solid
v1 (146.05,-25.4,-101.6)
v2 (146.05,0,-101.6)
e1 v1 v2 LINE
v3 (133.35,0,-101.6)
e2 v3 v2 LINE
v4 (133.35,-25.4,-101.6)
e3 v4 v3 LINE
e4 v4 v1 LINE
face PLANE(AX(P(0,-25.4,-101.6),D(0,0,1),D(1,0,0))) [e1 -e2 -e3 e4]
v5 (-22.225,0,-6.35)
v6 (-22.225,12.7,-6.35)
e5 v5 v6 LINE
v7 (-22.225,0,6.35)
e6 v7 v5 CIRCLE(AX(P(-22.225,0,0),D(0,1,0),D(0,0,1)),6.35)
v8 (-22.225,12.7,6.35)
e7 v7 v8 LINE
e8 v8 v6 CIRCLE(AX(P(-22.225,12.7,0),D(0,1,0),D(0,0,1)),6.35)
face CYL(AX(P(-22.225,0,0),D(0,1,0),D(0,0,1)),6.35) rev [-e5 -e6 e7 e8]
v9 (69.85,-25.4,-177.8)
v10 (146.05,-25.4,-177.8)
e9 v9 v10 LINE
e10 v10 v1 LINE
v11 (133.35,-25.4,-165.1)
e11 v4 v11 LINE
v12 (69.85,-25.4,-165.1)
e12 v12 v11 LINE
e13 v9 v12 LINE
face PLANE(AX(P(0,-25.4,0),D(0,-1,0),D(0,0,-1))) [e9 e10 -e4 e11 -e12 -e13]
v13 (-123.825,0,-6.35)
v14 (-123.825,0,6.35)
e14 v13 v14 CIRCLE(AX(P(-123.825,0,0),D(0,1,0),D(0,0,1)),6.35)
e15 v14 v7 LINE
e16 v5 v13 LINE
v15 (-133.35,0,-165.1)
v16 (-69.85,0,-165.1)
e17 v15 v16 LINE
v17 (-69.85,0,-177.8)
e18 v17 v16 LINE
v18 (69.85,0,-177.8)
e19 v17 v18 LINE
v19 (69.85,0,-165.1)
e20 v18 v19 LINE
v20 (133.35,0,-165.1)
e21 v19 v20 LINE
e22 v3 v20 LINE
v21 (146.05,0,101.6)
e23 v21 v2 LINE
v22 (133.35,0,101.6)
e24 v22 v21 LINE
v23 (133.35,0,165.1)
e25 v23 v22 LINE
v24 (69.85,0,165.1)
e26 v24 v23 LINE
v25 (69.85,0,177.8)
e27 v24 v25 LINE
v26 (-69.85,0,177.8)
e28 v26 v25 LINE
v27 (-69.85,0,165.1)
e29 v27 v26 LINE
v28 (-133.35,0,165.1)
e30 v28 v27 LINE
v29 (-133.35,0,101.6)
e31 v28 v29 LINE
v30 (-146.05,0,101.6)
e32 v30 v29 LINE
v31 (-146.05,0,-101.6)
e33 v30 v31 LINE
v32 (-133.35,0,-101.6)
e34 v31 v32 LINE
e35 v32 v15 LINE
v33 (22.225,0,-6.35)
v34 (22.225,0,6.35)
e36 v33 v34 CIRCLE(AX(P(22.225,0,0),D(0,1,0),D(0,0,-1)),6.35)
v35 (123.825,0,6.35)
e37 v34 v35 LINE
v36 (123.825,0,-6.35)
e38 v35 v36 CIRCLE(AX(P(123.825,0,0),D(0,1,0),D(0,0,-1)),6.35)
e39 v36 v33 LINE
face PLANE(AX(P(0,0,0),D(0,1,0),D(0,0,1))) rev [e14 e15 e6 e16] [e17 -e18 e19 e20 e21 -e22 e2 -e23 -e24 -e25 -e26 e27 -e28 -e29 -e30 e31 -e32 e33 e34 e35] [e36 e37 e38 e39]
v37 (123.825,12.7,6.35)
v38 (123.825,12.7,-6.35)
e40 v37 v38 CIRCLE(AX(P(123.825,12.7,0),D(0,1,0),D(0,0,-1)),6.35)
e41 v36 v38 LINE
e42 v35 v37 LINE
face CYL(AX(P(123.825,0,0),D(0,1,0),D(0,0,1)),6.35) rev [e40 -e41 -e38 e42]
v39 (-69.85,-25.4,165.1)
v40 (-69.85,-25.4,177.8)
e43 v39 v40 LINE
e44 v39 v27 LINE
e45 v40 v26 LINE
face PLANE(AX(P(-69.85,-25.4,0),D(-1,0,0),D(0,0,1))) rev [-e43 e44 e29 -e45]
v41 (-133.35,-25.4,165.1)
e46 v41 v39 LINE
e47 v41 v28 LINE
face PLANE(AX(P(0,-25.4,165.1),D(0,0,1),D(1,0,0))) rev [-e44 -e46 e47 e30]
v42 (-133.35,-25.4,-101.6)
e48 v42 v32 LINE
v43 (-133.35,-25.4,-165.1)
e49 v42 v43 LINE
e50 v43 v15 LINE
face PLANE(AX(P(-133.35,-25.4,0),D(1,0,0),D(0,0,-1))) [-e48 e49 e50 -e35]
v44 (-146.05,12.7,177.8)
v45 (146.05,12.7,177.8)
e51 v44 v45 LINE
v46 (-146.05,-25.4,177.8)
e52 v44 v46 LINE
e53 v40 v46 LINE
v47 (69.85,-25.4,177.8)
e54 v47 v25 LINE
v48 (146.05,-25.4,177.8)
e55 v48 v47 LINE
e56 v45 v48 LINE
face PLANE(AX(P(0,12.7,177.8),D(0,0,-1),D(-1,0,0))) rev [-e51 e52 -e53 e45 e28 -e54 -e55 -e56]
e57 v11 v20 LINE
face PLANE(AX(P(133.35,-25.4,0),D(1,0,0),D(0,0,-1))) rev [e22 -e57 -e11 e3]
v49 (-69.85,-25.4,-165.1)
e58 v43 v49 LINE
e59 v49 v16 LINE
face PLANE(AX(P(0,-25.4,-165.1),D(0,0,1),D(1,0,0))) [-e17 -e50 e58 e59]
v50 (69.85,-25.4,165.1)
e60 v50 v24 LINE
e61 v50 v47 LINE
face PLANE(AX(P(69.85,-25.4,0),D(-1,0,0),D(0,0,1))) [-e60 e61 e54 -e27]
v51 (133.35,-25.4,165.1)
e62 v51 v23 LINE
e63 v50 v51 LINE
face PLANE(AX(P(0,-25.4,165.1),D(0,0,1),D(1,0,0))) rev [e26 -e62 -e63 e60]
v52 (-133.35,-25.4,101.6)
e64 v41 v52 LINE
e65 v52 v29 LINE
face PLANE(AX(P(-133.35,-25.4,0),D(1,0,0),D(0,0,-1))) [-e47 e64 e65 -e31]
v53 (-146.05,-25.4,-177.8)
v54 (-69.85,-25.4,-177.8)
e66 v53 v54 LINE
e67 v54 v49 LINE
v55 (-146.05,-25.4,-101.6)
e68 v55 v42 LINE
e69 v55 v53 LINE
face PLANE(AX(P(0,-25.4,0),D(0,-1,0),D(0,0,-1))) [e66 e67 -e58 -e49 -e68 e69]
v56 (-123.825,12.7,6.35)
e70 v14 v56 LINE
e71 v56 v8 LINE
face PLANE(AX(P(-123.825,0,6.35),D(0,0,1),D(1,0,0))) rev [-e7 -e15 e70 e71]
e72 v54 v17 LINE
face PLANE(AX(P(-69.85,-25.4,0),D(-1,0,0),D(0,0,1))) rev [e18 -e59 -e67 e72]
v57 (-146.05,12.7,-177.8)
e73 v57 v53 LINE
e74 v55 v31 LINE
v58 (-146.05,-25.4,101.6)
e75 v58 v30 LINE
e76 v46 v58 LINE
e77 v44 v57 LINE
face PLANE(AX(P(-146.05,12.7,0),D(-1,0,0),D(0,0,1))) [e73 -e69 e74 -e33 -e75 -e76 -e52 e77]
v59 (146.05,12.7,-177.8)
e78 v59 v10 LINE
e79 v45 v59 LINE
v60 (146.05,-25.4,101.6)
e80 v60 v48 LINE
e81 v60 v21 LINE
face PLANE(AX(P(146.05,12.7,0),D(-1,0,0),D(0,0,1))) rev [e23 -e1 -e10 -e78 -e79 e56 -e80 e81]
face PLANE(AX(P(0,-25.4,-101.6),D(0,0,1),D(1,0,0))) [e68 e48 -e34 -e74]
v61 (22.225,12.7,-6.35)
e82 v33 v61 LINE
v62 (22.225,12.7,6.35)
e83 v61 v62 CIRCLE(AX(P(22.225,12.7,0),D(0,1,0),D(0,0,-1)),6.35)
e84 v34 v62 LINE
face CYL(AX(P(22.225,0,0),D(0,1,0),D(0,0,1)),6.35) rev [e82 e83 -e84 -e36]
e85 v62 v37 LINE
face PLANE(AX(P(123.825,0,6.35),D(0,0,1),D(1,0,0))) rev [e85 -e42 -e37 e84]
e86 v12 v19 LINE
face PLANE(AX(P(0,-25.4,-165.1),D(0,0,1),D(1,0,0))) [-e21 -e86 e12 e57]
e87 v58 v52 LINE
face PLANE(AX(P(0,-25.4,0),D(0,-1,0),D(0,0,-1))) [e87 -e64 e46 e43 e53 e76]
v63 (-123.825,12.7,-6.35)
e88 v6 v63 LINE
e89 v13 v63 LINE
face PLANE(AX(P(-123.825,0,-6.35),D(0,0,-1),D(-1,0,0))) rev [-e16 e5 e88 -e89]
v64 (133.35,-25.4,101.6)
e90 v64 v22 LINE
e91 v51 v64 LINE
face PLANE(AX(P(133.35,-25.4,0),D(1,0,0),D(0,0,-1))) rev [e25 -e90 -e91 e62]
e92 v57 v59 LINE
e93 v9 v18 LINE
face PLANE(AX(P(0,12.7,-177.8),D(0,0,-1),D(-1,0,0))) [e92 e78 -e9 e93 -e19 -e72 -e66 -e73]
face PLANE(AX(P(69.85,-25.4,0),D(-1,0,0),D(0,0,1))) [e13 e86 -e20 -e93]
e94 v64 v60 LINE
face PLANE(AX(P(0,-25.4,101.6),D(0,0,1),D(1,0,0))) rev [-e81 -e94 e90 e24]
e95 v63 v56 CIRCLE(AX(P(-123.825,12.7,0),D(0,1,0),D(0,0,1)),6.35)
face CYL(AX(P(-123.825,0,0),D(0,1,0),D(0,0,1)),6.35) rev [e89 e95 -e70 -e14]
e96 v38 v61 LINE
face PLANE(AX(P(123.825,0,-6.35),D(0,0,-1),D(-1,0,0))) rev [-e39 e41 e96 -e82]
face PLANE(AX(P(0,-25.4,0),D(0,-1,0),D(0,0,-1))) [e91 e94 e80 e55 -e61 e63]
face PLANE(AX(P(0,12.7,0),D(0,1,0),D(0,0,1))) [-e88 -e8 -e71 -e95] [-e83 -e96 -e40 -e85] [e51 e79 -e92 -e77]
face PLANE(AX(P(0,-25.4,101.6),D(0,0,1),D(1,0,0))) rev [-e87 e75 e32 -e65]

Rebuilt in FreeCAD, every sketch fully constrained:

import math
import FreeCAD as App
import Part
import Sketcher
from FreeCAD import Vector
Q = App.Units.Quantity


def add_polygon(sketch, points):
    """Adds a closed chain of lines whose ends are joined by coincident constraints."""
    first, n = sketch.GeometryCount, len(points)
    for a, b in zip(points, points[1:] + points[:1]):
        sketch.addGeometry(Part.LineSegment(App.Vector(*a, 0), App.Vector(*b, 0)), False)
    for i in range(n):
        sketch.addConstraint(Sketcher.Constraint("Coincident", first + i, 2, first + (i + 1) % n, 1))

doc = App.newDocument("Part")
body = doc.addObject("PartDesign::Body", "Body")

# Sketch on XZ plane
sketch1 = body.newObject("Sketcher::SketchObject", "Sketch")
sketch1.AttachmentSupport = (doc.getObject("XZ_Plane"), [""])
sketch1.MapMode = "FlatFace"
add_polygon(sketch1, [(-146.05, -177.8), (-146.05, 177.8), (146.05, 177.8), (146.05, -177.8)])  # lines 0-3
sketch1.addConstraint([
    Sketcher.Constraint("Vertical", 0),
    Sketcher.Constraint("Horizontal", 1),
    Sketcher.Constraint("Vertical", 2),
    Sketcher.Constraint("Horizontal", 3),
    Sketcher.Constraint("Symmetric", 0, 2, 2, 2, -1, 1),
    Sketcher.Constraint("DistanceY", 0, 1, 0, 2, Q("14 in")),
    Sketcher.Constraint("DistanceX", 1, 1, 1, 2, Q("11.5 in")),
])
pad1 = body.newObject("PartDesign::Pad", "Pad")
pad1.Profile = sketch1
pad1.Length = Q("0.5 in")
pad1.Reversed = True

# Sketch on XZ plane
sketch2 = body.newObject("Sketcher::SketchObject", "Sketch001")
sketch2.AttachmentSupport = (doc.getObject("XZ_Plane"), [""])
sketch2.MapMode = "FlatFace"
sketch2.AttachmentOffset = App.Placement(Vector(0, 0, -0.5 * 25.4), App.Rotation())
sketch2.addGeometry([
    Part.LineSegment(Vector(-22.225, -6.35, 0), Vector(-123.825, -6.35, 0)),  # 0
    Part.ArcOfCircle(Part.Circle(Vector(-123.825, 0, 0), Vector(0, 0, 1), 6.35), math.radians(90), math.radians(270)),  # 1
    Part.LineSegment(Vector(-123.825, 6.35, 0), Vector(-22.225, 6.35, 0)),  # 2
    Part.ArcOfCircle(Part.Circle(Vector(-22.225, 0, 0), Vector(0, 0, 1), 6.35), math.radians(-90), math.radians(90)),  # 3
    Part.LineSegment(Vector(123.825, -6.35, 0), Vector(22.225, -6.35, 0)),  # 4
    Part.ArcOfCircle(Part.Circle(Vector(22.225, 0, 0), Vector(0, 0, 1), 6.35), math.radians(90), math.radians(270)),  # 5
    Part.LineSegment(Vector(22.225, 6.35, 0), Vector(123.825, 6.35, 0)),  # 6
    Part.ArcOfCircle(Part.Circle(Vector(123.825, 0, 0), Vector(0, 0, 1), 6.35), math.radians(-90), math.radians(90)),  # 7
], False)
sketch2.addConstraint([
    Sketcher.Constraint("Tangent", 0, 2, 1, 2),
    Sketcher.Constraint("Tangent", 1, 1, 2, 1),
    Sketcher.Constraint("Tangent", 2, 2, 3, 2),
    Sketcher.Constraint("Tangent", 3, 1, 0, 1),
    Sketcher.Constraint("Tangent", 4, 2, 5, 2),
    Sketcher.Constraint("Tangent", 5, 1, 6, 1),
    Sketcher.Constraint("Tangent", 6, 2, 7, 2),
    Sketcher.Constraint("Tangent", 7, 1, 4, 1),
    Sketcher.Constraint("Horizontal", 0),
    Sketcher.Constraint("Horizontal", 2),
    Sketcher.Constraint("Horizontal", 4),
    Sketcher.Constraint("Horizontal", 6),
    Sketcher.Constraint("Equal", 3, 5),
    Sketcher.Constraint("Symmetric", 3, 3, 5, 3, -1, 1),
    Sketcher.Constraint("Symmetric", 1, 3, 7, 3, -2),
    Sketcher.Constraint("DistanceX", 0, 2, 0, 1, Q("4 in")),
    Sketcher.Constraint("Radius", 1, Q("0.25 in")),
    Sketcher.Constraint("DistanceX", 3, 3, 5, 3, Q("1.75 in")),
])
pocket1 = body.newObject("PartDesign::Pocket", "Pocket")
pocket1.Profile = sketch2
pocket1.Type = "ThroughAll"
pocket1.Reversed = True

# Sketch on XZ plane
sketch3 = body.newObject("Sketcher::SketchObject", "Sketch002")
sketch3.AttachmentSupport = (doc.getObject("XZ_Plane"), [""])
sketch3.MapMode = "FlatFace"
add_polygon(sketch3, [(-69.85, 177.8), (-146.05, 177.8), (-146.05, 101.6), (-133.35, 101.6), (-133.35, 165.1), (-69.85, 165.1)])  # lines 0-5
add_polygon(sketch3, [(146.05, 177.8), (69.85, 177.8), (69.85, 165.1), (133.35, 165.1), (133.35, 101.6), (146.05, 101.6)])  # lines 6-11
add_polygon(sketch3, [(146.05, -177.8), (146.05, -101.6), (133.35, -101.6), (133.35, -165.1), (69.85, -165.1), (69.85, -177.8)])  # lines 12-17
add_polygon(sketch3, [(-133.35, -101.6), (-146.05, -101.6), (-146.05, -177.8), (-69.85, -177.8), (-69.85, -165.1), (-133.35, -165.1)])  # lines 18-23
sketch3.addConstraint([
    Sketcher.Constraint("Horizontal", 0),
    Sketcher.Constraint("Vertical", 1),
    Sketcher.Constraint("Horizontal", 2),
    Sketcher.Constraint("Vertical", 3),
    Sketcher.Constraint("Horizontal", 4),
    Sketcher.Constraint("Vertical", 5),
    Sketcher.Constraint("Horizontal", 6),
    Sketcher.Constraint("Vertical", 7),
    Sketcher.Constraint("Horizontal", 8),
    Sketcher.Constraint("Vertical", 9),
    Sketcher.Constraint("Horizontal", 10),
    Sketcher.Constraint("Vertical", 11),
    Sketcher.Constraint("Vertical", 12),
    Sketcher.Constraint("Horizontal", 13),
    Sketcher.Constraint("Vertical", 14),
    Sketcher.Constraint("Horizontal", 15),
    Sketcher.Constraint("Vertical", 16),
    Sketcher.Constraint("Horizontal", 17),
    Sketcher.Constraint("Horizontal", 18),
    Sketcher.Constraint("Vertical", 19),
    Sketcher.Constraint("Horizontal", 20),
    Sketcher.Constraint("Vertical", 21),
    Sketcher.Constraint("Horizontal", 22),
    Sketcher.Constraint("Vertical", 23),
    Sketcher.Constraint("Symmetric", 1, 2, 12, 2, -1, 1),
    Sketcher.Constraint("Symmetric", 3, 2, 14, 2, -1, 1),
    Sketcher.Constraint("Symmetric", 5, 2, 16, 2, -1, 1),
    Sketcher.Constraint("Symmetric", 10, 2, 18, 2, -1, 1),
    Sketcher.Constraint("Symmetric", 6, 2, 20, 2, -1, 1),
    Sketcher.Constraint("Symmetric", 8, 2, 22, 2, -1, 1),
    Sketcher.Constraint("Symmetric", 5, 2, 6, 2, -2),
    Sketcher.Constraint("Symmetric", 3, 2, 8, 2, -2),
    Sketcher.Constraint("Symmetric", 1, 2, 10, 2, -2),
    Sketcher.Constraint("Equal", 20, 1),
    Sketcher.Constraint("Equal", 22, 3),
    Sketcher.Constraint("DistanceX", 0, 2, 0, 1, Q("3 in")),
    Sketcher.Constraint("DistanceX", 2, 1, 2, 2, Q("0.5 in")),
    Sketcher.Constraint("DistanceY", -1, 1, 0, 2, Q("7 in")),
    Sketcher.Constraint("DistanceX", 3, 2, 6, 2, Q("8 in")),
])
pad2 = body.newObject("PartDesign::Pad", "Pad001")
pad2.Profile = sketch3
pad2.Length = Q("1 in")

doc.recompute()
